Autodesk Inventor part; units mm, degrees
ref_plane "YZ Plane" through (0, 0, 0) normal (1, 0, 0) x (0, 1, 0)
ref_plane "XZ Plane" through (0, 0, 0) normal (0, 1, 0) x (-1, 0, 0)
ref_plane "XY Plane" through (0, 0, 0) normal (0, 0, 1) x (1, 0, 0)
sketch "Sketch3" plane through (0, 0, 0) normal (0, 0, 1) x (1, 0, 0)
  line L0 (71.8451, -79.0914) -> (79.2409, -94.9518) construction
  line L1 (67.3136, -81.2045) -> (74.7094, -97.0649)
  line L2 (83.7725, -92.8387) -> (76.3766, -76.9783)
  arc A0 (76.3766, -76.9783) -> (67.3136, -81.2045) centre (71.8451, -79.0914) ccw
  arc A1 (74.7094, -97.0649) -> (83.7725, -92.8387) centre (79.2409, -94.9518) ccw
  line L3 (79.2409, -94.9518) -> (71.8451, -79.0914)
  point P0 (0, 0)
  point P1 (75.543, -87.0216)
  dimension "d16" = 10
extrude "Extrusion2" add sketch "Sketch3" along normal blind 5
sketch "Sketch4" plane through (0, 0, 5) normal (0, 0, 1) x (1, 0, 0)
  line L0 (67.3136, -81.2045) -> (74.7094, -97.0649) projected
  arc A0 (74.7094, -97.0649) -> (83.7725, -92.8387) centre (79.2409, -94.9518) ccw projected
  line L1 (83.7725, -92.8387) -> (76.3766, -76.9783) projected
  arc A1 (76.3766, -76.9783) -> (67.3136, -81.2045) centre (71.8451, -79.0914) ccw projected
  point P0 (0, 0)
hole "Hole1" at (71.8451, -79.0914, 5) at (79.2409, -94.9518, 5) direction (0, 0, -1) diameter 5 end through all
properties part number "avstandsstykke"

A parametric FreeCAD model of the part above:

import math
import FreeCAD as App
import Part
import Sketcher
from FreeCAD import Vector
Q = App.Units.Quantity

doc = App.newDocument("Part")
body = doc.addObject("PartDesign::Body", "Body")

# Sketch on XY plane
sketch1 = body.newObject("Sketcher::SketchObject", "Sketch")
sketch1.AttachmentSupport = (doc.getObject("XY_Plane"), [""])
sketch1.MapMode = "FlatFace"
sketch1.addGeometry(Part.ArcOfCircle(Part.Circle(Vector(71.8451, -79.0914, 0), Vector(0, 0, 1), 4.999968), math.radians(25.000279), math.radians(205.000279)), False)
sketch1.addGeometry(Part.LineSegment(Vector(67.3136, -81.2045, 0), Vector(74.7094, -97.0649, 0)), False)
sketch1.addGeometry(Part.ArcOfCircle(Part.Circle(Vector(79.2409, -94.9518, 0), Vector(0, 0, 1), 4.999968), math.radians(-154.999721), math.radians(24.999795)), False)
sketch1.addGeometry(Part.LineSegment(Vector(83.7725, -92.8387, 0), Vector(76.3766, -76.9783, 0)), False)
sketch1.addConstraint(Sketcher.Constraint("Tangent", 0, 2, 1, 1))
sketch1.addConstraint(Sketcher.Constraint("Tangent", 1, 2, 2, 1))
sketch1.addConstraint(Sketcher.Constraint("Tangent", 2, 2, 3, 1))
sketch1.addConstraint(Sketcher.Constraint("Tangent", 3, 2, 0, 1))
sketch1.addConstraint(Sketcher.Constraint("Equal", 0, 2))
sketch1.addConstraint(Sketcher.Constraint("Radius", 0, Q("5 mm")))
sketch1.addConstraint(Sketcher.Constraint("Angle", 1, Q("-65 deg")))
sketch1.addConstraint(Sketcher.Constraint("Distance", 1, Q("17.5 mm")))
sketch1.addConstraint(Sketcher.Constraint("DistanceX", -1, 1, 0, 3, Q("71.845 mm")))
sketch1.addConstraint(Sketcher.Constraint("DistanceY", 1, 2, -1, 1, Q("97.065 mm")))
pad1 = body.newObject("PartDesign::Pad", "Pad")
pad1.Profile = sketch1
pad1.Length = 5

# Sketch on XY plane
sketch2 = body.newObject("Sketcher::SketchObject", "Sketch001")
sketch2.AttachmentSupport = (doc.getObject("XY_Plane"), [""])
sketch2.MapMode = "FlatFace"
sketch2.AttachmentOffset = App.Placement(Vector(0, 0, 5), App.Rotation())
sketch2.addGeometry(Part.Circle(Vector(71.8451, -79.0914, 0), Vector(0, 0, 1), 2.5), False)
sketch2.addGeometry(Part.Circle(Vector(79.2409, -94.9518, 0), Vector(0, 0, 1), 2.5), False)
sketch2.addConstraint(Sketcher.Constraint("Equal", 0, 1))
sketch2.addConstraint(Sketcher.Constraint("Diameter", 0, Q("5 mm")))
sketch2.addConstraint(Sketcher.Constraint("DistanceX", -1, 1, 0, 3, Q("71.845 mm")))
sketch2.addConstraint(Sketcher.Constraint("DistanceX", -1, 1, 1, 3, Q("79.241 mm")))
sketch2.addConstraint(Sketcher.Constraint("DistanceY", 0, 3, -1, 1, Q("79.0914 mm")))
sketch2.addConstraint(Sketcher.Constraint("DistanceY", 1, 3, -1, 1, Q("94.9518 mm")))
doc.recompute()
hole = body.newObject("PartDesign::Hole", "Hole")
hole.Profile = sketch2
hole.ThreadType = "None"
hole.Diameter = 5
hole.DepthType = "ThroughAll"

doc.recompute()
